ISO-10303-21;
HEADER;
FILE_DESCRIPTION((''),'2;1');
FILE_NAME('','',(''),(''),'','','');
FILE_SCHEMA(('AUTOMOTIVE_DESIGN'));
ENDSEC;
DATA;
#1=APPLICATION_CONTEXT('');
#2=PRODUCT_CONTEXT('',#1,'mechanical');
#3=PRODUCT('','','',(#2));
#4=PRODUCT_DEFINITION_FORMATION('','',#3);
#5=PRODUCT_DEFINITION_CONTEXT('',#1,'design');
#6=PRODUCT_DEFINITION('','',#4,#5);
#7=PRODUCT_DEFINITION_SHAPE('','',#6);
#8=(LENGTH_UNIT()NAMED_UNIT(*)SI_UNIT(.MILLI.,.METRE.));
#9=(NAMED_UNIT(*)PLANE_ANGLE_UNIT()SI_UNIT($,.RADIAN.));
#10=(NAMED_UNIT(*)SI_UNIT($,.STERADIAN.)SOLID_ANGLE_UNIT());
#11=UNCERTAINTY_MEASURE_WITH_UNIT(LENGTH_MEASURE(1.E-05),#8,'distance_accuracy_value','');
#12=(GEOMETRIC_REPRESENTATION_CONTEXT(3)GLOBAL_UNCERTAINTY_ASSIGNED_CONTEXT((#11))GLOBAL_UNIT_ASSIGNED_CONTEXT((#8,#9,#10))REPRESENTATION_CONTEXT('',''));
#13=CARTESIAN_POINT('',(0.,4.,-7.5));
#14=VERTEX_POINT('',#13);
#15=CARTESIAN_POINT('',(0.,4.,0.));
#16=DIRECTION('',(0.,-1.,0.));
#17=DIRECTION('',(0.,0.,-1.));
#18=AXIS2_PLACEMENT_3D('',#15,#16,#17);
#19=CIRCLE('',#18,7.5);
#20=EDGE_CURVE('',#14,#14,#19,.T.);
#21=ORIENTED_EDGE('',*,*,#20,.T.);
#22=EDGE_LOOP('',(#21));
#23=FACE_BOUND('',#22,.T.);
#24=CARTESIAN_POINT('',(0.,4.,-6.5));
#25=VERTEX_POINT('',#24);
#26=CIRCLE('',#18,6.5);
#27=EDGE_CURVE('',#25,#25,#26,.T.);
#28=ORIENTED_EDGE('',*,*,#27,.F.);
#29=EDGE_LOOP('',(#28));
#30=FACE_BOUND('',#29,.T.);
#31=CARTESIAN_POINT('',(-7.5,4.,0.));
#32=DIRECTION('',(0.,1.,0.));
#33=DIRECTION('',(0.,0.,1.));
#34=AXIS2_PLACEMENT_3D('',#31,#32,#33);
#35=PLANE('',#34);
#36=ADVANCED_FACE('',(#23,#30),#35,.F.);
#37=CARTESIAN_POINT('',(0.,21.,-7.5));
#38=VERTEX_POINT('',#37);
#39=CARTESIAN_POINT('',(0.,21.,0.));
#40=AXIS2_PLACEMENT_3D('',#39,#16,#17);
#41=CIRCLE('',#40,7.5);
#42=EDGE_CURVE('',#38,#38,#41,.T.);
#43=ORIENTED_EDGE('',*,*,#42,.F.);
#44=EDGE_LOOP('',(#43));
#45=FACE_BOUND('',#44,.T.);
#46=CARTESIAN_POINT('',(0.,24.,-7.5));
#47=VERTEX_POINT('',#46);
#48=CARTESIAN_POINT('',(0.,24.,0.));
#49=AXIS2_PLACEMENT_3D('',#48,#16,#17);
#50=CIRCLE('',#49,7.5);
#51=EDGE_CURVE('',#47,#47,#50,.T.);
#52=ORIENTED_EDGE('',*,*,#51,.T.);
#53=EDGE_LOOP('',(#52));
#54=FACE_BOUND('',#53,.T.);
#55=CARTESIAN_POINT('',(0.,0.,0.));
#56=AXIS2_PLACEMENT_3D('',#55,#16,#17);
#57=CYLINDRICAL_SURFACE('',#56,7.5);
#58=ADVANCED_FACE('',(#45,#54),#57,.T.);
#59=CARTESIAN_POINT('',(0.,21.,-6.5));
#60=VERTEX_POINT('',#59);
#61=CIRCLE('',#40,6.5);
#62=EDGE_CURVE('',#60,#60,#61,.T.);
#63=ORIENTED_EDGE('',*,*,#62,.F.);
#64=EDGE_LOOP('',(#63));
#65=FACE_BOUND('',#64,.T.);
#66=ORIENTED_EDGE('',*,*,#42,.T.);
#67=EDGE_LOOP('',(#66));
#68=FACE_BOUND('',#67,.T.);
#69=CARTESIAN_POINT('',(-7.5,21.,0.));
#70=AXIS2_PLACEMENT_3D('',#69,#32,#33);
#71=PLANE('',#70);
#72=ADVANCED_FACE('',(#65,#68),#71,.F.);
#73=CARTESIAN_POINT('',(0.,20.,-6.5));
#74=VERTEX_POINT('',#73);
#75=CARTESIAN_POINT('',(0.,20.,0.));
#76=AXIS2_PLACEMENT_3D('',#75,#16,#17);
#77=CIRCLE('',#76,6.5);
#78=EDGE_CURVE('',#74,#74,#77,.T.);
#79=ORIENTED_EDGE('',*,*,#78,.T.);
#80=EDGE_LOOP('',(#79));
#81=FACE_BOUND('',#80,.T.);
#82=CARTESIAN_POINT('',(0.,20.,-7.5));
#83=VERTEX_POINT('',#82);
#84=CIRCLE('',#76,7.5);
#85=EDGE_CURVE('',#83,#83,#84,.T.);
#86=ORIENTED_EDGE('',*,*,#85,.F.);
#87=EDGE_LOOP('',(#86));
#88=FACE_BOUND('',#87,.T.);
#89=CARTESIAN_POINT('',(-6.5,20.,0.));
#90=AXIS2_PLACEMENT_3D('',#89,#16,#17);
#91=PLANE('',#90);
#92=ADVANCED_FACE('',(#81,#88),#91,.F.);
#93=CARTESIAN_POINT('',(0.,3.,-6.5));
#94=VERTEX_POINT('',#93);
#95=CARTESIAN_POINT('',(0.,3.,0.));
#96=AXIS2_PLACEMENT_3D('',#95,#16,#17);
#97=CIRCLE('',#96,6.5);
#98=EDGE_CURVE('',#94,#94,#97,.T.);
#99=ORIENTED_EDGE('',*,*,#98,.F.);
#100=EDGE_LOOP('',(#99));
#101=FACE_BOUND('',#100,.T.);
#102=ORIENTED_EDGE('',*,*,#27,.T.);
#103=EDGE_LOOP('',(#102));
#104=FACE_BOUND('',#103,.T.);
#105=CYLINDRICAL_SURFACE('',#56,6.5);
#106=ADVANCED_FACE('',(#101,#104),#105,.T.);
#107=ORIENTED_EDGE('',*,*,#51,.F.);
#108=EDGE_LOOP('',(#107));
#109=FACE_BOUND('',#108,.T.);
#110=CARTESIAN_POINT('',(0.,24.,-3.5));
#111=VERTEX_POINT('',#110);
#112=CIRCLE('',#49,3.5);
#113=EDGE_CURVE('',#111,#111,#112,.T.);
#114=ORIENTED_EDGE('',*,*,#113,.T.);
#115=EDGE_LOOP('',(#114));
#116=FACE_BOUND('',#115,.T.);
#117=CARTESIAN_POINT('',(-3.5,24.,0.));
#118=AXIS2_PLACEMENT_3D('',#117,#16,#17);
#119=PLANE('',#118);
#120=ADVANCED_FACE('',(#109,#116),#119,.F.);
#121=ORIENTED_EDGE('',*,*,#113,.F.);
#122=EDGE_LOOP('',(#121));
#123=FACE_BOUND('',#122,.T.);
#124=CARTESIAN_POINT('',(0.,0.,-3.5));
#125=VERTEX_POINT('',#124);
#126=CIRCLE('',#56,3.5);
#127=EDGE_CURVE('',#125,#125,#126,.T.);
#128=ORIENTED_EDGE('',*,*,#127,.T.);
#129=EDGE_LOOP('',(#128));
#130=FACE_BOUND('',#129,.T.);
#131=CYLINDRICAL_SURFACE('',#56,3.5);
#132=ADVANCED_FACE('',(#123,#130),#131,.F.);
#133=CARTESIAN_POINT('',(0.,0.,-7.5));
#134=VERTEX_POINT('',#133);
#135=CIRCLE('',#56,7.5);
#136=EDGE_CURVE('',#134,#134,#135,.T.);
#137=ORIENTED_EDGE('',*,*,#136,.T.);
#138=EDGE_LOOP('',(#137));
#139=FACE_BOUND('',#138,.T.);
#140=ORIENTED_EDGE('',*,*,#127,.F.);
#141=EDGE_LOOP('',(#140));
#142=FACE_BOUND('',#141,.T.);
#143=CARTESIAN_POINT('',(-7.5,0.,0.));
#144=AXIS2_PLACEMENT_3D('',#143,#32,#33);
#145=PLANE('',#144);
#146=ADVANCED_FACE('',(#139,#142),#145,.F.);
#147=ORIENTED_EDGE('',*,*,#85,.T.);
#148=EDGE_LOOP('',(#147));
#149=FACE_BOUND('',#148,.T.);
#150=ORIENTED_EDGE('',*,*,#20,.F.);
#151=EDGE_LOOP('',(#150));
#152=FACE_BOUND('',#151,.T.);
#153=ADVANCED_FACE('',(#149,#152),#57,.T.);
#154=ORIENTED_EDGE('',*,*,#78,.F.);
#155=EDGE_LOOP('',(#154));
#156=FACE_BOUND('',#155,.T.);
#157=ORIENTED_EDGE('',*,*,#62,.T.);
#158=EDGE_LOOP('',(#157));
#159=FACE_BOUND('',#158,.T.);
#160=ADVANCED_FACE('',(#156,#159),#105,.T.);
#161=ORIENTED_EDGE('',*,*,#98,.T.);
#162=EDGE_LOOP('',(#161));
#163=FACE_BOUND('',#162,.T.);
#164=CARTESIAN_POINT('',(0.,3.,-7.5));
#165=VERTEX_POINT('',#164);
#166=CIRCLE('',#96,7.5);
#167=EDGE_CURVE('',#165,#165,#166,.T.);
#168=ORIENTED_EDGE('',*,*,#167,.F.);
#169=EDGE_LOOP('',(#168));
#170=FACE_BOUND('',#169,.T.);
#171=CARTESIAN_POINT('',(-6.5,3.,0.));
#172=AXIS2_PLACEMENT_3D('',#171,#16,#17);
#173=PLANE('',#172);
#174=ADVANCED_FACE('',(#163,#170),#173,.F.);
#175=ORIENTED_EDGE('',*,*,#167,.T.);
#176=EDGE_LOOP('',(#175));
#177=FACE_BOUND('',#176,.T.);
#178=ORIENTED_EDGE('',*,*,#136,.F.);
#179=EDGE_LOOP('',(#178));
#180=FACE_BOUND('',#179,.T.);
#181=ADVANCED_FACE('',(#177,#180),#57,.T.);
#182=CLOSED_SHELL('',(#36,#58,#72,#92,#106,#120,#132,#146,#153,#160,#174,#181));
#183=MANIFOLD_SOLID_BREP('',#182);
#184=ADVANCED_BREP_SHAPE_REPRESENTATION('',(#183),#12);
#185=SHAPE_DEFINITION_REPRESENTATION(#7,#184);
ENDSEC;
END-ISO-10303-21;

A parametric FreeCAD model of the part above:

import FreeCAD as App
import Part
import Sketcher
from FreeCAD import Vector
Q = App.Units.Quantity

doc = App.newDocument("Part")
params = doc.addObject("Spreadsheet::Sheet", "Params")
for row, (alias, value) in enumerate([
    ("sketch1_width", "4 mm"),
    ("sketch1_width2", "1 mm"),
    ("sketch1_height", "24 mm"),
    ("sketch1_height2", "3 mm"),
    ("revolution_angle", "360 deg"),
], start=1):
    params.set(f"A{row}", alias)
    params.set(f"B{row}", "=" + value)
    params.setAlias(f"B{row}", alias)

body = doc.addObject("PartDesign::Body", "Body")

# Sketch on XY plane
sketch1 = doc.addObject("Sketcher::SketchObject", "Sketch")
body.addObject(sketch1)
sketch1.AttachmentSupport = (doc.XY_Plane, [""])
sketch1.MapMode = "FlatFace"
sketch1.addGeometry(Part.LineSegment(Vector(-3.5, 0, 0), Vector(-3.5, 24, 0)), False)
sketch1.addGeometry(Part.LineSegment(Vector(-3.5, 24, 0), Vector(-7.5, 24, 0)), False)
sketch1.addGeometry(Part.LineSegment(Vector(-7.5, 24, 0), Vector(-7.5, 21, 0)), False)
sketch1.addGeometry(Part.LineSegment(Vector(-7.5, 21, 0), Vector(-6.5, 21, 0)), False)
sketch1.addGeometry(Part.LineSegment(Vector(-6.5, 21, 0), Vector(-6.5, 20, 0)), False)
sketch1.addGeometry(Part.LineSegment(Vector(-6.5, 20, 0), Vector(-7.5, 20, 0)), False)
sketch1.addGeometry(Part.LineSegment(Vector(-7.5, 20, 0), Vector(-7.5, 4, 0)), False)
sketch1.addGeometry(Part.LineSegment(Vector(-7.5, 4, 0), Vector(-6.5, 4, 0)), False)
sketch1.addGeometry(Part.LineSegment(Vector(-6.5, 4, 0), Vector(-6.5, 3, 0)), False)
sketch1.addGeometry(Part.LineSegment(Vector(-6.5, 3, 0), Vector(-7.5, 3, 0)), False)
sketch1.addGeometry(Part.LineSegment(Vector(-7.5, 3, 0), Vector(-7.5, 0, 0)), False)
sketch1.addGeometry(Part.LineSegment(Vector(-7.5, 0, 0), Vector(-3.5, 0, 0)), False)
sketch1.addConstraint(Sketcher.Constraint("Coincident", 0, 2, 1, 1))
sketch1.addConstraint(Sketcher.Constraint("Coincident", 1, 2, 2, 1))
sketch1.addConstraint(Sketcher.Constraint("Coincident", 2, 2, 3, 1))
sketch1.addConstraint(Sketcher.Constraint("Coincident", 3, 2, 4, 1))
sketch1.addConstraint(Sketcher.Constraint("Coincident", 4, 2, 5, 1))
sketch1.addConstraint(Sketcher.Constraint("Coincident", 5, 2, 6, 1))
sketch1.addConstraint(Sketcher.Constraint("Coincident", 6, 2, 7, 1))
sketch1.addConstraint(Sketcher.Constraint("Coincident", 7, 2, 8, 1))
sketch1.addConstraint(Sketcher.Constraint("Coincident", 8, 2, 9, 1))
sketch1.addConstraint(Sketcher.Constraint("Coincident", 9, 2, 10, 1))
sketch1.addConstraint(Sketcher.Constraint("Coincident", 10, 2, 11, 1))
sketch1.addConstraint(Sketcher.Constraint("Coincident", 11, 2, 0, 1))
sketch1.addConstraint(Sketcher.Constraint("Vertical", 0))
sketch1.addConstraint(Sketcher.Constraint("Horizontal", 1))
sketch1.addConstraint(Sketcher.Constraint("Vertical", 2))
sketch1.addConstraint(Sketcher.Constraint("Horizontal", 3))
sketch1.addConstraint(Sketcher.Constraint("Vertical", 4))
sketch1.addConstraint(Sketcher.Constraint("Horizontal", 5))
sketch1.addConstraint(Sketcher.Constraint("Vertical", 6))
sketch1.addConstraint(Sketcher.Constraint("Horizontal", 7))
sketch1.addConstraint(Sketcher.Constraint("Vertical", 8))
sketch1.addConstraint(Sketcher.Constraint("Horizontal", 9))
sketch1.addConstraint(Sketcher.Constraint("Vertical", 10))
sketch1.addConstraint(Sketcher.Constraint("Horizontal", 11))
sketch1.addConstraint(Sketcher.Constraint("PointOnObject", 10, 2, -1))
sketch1.addConstraint(Sketcher.Constraint("Vertical", 2, 2, 5, 2))
sketch1.addConstraint(Sketcher.Constraint("Vertical", 4, 2, 7, 2))
sketch1.addConstraint(Sketcher.Constraint("Vertical", 6, 2, 9, 2))
sketch1.addConstraint(Sketcher.Constraint("Equal", 9, 4))
sketch1.addConstraint(Sketcher.Constraint("Equal", 4, 8))
sketch1.addConstraint(Sketcher.Constraint("Equal", 2, 10))
sketch1.addConstraint(Sketcher.Constraint("DistanceX", 1, 2, 1, 1, Q("4 mm")))
sketch1.addConstraint(Sketcher.Constraint("DistanceX", 3, 1, 3, 2, Q("1 mm")))
sketch1.addConstraint(Sketcher.Constraint("DistanceY", 0, 1, 0, 2, Q("24 mm")))
sketch1.addConstraint(Sketcher.Constraint("DistanceY", 2, 2, 2, 1, Q("3 mm")))
sketch1.addConstraint(Sketcher.Constraint("DistanceX", 0, 2, -1, 1, Q("3.5 mm")))
sketch1.setExpression("Constraints[31]", "Params.sketch1_width")
sketch1.setExpression("Constraints[32]", "Params.sketch1_width2")
sketch1.setExpression("Constraints[33]", "Params.sketch1_height")
sketch1.setExpression("Constraints[34]", "Params.sketch1_height2")
revolution = doc.addObject("PartDesign::Revolution", "Revolution")
body.addObject(revolution)
revolution.Profile = sketch1
revolution.ReferenceAxis = (sketch1, ["V_Axis"])
revolution.setExpression("Angle", "Params.revolution_angle")

doc.recompute()
